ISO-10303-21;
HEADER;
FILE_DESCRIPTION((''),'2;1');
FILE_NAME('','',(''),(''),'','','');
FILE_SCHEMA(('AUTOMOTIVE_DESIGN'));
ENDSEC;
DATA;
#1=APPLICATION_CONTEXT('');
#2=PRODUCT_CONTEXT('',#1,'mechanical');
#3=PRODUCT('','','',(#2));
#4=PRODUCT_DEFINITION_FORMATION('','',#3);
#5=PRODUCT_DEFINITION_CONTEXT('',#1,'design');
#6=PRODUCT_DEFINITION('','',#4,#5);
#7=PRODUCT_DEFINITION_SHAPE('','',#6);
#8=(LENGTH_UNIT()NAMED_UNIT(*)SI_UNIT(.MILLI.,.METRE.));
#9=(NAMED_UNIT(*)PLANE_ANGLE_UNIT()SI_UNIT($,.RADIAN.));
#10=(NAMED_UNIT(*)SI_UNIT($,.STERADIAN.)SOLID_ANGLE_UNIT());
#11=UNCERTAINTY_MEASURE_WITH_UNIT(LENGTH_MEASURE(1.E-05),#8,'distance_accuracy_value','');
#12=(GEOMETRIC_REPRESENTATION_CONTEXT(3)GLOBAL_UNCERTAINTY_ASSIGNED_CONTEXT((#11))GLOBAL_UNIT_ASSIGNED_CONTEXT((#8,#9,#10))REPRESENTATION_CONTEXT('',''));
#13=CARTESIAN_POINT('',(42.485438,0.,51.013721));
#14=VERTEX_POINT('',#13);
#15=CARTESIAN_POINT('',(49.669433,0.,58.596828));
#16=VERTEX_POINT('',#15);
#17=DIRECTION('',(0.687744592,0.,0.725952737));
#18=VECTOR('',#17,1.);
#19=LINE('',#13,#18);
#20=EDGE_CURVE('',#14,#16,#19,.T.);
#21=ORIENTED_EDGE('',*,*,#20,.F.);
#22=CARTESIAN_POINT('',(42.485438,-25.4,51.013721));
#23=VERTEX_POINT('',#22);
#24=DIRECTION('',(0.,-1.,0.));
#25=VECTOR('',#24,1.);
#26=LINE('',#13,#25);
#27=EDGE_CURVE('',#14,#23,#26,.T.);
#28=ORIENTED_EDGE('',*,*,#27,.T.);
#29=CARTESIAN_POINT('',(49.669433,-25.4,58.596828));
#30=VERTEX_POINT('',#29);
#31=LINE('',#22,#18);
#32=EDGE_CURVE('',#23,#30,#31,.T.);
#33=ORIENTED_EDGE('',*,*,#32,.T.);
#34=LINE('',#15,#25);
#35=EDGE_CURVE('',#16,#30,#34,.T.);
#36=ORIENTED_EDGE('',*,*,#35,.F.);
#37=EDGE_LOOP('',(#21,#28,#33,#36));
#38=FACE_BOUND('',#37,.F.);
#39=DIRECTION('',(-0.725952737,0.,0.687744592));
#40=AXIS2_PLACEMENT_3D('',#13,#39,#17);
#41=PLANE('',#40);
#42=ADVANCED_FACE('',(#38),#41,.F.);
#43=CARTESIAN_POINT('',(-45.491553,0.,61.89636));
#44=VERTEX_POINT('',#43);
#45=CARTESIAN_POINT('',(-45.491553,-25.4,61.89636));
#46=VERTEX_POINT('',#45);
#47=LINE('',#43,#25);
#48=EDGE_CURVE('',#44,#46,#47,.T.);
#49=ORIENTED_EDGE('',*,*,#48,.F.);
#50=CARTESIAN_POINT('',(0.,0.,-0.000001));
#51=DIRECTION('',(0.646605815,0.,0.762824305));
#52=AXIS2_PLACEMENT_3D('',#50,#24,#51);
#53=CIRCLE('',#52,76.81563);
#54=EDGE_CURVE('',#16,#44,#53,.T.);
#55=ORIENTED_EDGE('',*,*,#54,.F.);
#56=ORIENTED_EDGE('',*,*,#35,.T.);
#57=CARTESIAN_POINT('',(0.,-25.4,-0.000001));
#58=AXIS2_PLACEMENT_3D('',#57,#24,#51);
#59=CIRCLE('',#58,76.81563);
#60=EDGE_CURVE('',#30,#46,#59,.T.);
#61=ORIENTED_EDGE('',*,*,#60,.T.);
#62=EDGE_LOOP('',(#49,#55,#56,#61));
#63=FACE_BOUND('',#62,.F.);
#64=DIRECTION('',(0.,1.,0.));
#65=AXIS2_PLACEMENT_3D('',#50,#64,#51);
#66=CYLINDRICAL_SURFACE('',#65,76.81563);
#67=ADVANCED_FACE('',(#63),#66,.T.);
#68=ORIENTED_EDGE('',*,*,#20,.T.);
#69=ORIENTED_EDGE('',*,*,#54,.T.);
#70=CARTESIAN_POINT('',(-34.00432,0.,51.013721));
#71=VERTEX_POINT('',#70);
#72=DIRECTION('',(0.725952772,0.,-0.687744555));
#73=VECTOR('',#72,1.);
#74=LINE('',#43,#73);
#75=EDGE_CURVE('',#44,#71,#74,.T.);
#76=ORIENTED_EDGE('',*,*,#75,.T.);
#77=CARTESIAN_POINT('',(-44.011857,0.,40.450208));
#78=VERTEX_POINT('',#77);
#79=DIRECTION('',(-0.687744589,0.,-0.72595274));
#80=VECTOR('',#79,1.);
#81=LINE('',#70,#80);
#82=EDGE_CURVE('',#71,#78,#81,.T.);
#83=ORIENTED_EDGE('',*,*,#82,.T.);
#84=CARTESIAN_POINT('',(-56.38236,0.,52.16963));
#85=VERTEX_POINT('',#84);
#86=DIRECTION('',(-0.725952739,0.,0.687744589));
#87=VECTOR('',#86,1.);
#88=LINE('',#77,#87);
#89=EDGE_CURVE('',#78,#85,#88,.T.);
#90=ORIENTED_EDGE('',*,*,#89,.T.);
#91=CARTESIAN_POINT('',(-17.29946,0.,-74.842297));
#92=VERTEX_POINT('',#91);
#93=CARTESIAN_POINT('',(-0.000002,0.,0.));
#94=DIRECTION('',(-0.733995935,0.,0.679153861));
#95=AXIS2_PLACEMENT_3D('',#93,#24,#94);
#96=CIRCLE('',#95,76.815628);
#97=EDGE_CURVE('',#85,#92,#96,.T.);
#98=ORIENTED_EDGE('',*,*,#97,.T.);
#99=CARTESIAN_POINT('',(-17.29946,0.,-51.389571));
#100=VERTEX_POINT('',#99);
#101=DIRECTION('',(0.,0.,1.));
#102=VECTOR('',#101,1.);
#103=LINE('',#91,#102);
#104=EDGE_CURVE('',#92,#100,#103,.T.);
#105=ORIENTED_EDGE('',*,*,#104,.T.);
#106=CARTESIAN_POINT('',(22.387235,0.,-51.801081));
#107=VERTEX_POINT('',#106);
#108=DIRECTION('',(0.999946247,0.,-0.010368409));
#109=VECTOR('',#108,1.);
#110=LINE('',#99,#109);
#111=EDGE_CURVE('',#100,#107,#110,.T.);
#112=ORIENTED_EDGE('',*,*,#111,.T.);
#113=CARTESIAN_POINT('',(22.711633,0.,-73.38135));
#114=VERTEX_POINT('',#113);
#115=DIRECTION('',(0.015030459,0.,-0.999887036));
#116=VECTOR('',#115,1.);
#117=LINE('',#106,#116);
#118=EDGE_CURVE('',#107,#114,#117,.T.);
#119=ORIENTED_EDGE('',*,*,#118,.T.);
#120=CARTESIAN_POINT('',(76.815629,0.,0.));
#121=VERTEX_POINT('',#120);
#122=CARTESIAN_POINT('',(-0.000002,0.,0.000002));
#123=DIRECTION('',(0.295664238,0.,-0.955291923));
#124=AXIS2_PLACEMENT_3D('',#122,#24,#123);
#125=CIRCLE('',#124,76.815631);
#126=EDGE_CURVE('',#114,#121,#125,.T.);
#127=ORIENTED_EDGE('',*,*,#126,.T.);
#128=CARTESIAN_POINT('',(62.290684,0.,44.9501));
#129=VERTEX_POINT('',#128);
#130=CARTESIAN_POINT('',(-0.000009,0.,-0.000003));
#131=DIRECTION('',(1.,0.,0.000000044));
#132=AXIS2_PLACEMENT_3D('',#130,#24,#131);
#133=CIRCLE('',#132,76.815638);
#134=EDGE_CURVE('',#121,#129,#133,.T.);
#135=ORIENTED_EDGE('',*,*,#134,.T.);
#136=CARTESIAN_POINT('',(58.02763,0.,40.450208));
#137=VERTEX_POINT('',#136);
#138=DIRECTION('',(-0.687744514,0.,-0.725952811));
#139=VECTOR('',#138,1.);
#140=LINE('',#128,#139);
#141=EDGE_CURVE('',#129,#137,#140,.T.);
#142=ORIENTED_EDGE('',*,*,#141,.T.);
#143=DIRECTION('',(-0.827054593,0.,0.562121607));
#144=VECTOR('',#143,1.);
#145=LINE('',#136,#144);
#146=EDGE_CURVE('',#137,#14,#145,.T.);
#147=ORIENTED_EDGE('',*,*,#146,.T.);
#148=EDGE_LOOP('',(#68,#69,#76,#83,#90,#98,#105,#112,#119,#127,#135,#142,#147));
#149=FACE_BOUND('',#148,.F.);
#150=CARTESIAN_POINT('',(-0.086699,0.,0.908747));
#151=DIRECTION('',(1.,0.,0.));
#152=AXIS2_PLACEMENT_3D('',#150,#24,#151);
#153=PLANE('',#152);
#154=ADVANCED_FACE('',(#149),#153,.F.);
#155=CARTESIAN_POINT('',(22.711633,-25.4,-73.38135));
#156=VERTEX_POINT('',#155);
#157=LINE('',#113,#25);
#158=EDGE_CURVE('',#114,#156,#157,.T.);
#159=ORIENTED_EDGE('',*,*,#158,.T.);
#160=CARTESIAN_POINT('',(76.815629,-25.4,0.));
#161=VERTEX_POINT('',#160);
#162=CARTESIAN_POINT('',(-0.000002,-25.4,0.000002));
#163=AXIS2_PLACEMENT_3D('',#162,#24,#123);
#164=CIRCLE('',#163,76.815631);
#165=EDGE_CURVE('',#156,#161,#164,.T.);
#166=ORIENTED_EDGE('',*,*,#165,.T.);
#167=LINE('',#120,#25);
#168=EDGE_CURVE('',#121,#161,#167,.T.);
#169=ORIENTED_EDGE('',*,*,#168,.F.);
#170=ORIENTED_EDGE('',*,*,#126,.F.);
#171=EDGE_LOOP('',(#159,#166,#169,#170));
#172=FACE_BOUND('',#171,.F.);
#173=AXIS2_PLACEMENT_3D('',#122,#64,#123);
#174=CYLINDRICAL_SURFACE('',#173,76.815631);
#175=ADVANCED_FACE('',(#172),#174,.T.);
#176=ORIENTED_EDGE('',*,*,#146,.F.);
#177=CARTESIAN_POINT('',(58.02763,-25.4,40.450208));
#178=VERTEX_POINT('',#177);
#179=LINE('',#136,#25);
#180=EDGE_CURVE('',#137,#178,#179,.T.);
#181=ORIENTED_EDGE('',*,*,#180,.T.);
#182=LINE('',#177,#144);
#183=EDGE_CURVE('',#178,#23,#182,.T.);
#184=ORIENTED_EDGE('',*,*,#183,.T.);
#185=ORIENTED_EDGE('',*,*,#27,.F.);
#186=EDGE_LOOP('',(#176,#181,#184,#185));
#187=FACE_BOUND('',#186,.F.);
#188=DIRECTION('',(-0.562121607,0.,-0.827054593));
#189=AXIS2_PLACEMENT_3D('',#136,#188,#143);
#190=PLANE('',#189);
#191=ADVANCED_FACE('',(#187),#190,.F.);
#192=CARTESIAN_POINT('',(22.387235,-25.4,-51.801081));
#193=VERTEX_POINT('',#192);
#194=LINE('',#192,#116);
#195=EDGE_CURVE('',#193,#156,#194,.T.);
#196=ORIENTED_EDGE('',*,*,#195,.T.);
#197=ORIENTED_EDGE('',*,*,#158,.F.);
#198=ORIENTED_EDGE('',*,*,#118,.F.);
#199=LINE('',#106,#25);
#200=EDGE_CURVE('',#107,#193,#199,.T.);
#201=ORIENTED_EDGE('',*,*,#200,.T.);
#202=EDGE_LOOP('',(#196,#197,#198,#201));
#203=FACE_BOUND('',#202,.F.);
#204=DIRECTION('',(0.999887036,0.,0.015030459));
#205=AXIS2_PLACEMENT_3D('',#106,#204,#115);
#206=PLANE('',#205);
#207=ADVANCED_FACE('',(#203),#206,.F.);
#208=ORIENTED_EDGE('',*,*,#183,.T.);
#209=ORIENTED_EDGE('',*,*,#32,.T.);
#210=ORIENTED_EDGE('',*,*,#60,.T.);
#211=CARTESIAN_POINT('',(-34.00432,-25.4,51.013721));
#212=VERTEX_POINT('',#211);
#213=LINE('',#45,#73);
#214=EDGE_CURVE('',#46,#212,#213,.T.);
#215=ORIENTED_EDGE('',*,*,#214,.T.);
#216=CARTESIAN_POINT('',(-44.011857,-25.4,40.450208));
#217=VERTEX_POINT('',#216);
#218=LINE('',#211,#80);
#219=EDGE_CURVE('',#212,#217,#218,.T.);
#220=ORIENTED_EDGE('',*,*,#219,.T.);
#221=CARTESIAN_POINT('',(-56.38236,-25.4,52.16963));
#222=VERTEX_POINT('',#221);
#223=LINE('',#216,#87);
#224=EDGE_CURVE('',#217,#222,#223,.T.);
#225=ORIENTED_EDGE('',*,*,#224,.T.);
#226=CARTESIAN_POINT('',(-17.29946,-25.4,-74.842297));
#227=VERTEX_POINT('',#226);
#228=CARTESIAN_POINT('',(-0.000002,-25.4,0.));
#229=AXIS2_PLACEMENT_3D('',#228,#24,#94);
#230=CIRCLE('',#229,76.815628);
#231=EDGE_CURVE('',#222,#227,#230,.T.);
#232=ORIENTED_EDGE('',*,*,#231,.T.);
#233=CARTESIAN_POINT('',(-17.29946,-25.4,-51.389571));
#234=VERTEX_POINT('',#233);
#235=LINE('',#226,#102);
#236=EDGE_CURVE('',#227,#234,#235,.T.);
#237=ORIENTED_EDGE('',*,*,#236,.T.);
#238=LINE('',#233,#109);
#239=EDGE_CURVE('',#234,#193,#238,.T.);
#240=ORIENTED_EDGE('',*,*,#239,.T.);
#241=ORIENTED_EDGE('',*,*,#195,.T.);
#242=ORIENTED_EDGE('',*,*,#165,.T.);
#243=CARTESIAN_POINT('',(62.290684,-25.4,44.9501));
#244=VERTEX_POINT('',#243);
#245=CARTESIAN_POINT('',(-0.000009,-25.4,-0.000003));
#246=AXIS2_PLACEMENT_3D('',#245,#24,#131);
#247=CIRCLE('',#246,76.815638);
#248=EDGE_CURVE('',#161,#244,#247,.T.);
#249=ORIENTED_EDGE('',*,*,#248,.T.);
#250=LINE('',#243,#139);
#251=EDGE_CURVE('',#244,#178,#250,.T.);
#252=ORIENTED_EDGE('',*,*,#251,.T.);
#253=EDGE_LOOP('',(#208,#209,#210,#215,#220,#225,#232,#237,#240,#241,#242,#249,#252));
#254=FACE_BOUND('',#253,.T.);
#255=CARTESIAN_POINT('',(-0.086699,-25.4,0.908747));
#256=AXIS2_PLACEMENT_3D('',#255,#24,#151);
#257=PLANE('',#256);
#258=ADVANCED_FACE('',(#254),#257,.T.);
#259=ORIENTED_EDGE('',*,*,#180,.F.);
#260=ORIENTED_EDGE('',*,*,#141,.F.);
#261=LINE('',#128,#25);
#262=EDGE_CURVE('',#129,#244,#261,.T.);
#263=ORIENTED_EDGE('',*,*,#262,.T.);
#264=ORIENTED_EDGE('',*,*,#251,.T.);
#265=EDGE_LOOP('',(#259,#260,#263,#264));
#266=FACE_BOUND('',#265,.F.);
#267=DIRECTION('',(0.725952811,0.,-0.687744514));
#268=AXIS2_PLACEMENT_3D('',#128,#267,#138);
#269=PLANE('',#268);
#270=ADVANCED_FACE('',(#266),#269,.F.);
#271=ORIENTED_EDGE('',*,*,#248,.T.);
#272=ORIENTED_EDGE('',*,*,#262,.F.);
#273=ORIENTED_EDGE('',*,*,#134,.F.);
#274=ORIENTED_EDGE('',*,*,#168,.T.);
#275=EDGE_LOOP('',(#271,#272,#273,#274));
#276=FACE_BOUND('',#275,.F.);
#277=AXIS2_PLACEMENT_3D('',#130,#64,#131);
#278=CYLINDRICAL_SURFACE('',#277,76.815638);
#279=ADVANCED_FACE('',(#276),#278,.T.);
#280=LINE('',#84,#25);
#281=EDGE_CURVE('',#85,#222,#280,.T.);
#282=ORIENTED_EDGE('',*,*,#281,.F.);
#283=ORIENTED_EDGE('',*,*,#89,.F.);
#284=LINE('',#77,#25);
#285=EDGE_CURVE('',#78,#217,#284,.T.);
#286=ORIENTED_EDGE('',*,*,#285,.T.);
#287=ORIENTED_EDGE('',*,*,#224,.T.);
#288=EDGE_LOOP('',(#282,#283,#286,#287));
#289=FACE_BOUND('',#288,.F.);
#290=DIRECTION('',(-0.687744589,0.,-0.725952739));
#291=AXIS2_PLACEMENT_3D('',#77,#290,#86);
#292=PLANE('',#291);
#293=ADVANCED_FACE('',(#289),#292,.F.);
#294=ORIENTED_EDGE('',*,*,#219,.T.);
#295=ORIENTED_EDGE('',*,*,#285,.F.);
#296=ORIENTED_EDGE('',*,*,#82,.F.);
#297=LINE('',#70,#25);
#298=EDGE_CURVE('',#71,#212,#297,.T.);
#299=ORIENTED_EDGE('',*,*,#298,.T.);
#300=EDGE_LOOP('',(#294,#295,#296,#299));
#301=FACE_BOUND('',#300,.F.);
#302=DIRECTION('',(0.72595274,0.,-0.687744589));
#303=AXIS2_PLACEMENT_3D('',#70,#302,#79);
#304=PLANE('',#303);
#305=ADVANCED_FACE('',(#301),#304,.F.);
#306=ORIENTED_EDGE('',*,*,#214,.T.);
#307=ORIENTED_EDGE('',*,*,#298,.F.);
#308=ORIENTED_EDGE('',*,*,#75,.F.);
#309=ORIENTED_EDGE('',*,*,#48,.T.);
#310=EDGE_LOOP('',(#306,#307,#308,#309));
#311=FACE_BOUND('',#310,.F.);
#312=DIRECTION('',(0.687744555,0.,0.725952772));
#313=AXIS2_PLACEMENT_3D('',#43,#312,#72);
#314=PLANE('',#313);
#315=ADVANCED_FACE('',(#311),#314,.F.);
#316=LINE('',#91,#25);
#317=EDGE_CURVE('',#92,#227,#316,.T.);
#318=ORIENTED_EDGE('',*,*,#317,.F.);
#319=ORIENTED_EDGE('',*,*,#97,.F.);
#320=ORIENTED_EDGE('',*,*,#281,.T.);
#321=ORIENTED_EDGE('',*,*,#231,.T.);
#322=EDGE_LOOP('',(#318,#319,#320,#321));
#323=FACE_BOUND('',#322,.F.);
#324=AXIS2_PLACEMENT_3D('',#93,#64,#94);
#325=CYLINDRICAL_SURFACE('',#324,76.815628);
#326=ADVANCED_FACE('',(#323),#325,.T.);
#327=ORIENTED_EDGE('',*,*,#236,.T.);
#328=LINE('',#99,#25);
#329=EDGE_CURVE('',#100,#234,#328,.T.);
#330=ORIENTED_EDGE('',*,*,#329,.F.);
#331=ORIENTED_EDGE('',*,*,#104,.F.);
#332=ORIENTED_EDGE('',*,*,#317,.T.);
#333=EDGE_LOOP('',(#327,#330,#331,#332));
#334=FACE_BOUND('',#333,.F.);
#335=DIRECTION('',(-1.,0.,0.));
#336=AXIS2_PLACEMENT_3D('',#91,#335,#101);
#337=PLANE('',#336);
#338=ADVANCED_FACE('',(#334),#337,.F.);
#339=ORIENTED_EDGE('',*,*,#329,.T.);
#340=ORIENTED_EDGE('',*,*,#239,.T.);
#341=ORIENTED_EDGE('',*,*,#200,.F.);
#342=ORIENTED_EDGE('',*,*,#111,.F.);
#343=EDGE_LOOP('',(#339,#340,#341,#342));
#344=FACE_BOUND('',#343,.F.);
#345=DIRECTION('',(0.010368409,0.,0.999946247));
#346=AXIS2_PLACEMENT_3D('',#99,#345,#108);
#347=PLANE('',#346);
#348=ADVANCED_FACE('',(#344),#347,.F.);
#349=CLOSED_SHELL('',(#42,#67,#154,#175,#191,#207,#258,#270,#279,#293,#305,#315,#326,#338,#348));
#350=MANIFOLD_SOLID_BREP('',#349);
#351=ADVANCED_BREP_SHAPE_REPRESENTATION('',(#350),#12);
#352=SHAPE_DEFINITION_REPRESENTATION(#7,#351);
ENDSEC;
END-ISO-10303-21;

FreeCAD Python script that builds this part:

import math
import FreeCAD as App
import Part
import Sketcher
Q = App.Units.Quantity

doc = App.newDocument("Part")
body = doc.addObject("PartDesign::Body", "Body")

# Sketch on XZ plane
sketch1 = doc.addObject("Sketcher::SketchObject", "Sketch")
body.addObject(sketch1)
sketch1.AttachmentSupport = (doc.XZ_Plane, [""])
sketch1.MapMode = "FlatFace"
sketch1.addGeometry([
    Part.ArcOfCircle(Part.Circle(App.Vector(0, 0, 0), App.Vector(0, 0, 1), 77), math.radians(-73), math.radians(0)),  # 0
    Part.ArcOfCircle(Part.Circle(App.Vector(0, 0, 0), App.Vector(0, 0, 1), 77), math.radians(0), math.radians(36)),  # 1
    Part.LineSegment(App.Vector(62, 45, 0), App.Vector(58, 40, 0)),  # 2
    Part.LineSegment(App.Vector(58, 40, 0), App.Vector(42, 51, 0)),  # 3
    Part.LineSegment(App.Vector(42, 51, 0), App.Vector(50, 59, 0)),  # 4
    Part.ArcOfCircle(Part.Circle(App.Vector(0, 0, 0), App.Vector(0, 0, 1), 77), math.radians(50), math.radians(126)),  # 5
    Part.LineSegment(App.Vector(-45, 62, 0), App.Vector(-34, 51, 0)),  # 6
    Part.LineSegment(App.Vector(-34, 51, 0), App.Vector(-44, 40, 0)),  # 7
    Part.LineSegment(App.Vector(-44, 40, 0), App.Vector(-56, 52, 0)),  # 8
    Part.ArcOfCircle(Part.Circle(App.Vector(0, 0, 0), App.Vector(0, 0, 1), 77), math.radians(137), math.radians(257)),  # 9
    Part.LineSegment(App.Vector(-17, -75, 0), App.Vector(-17, -51, 0)),  # 10
    Part.LineSegment(App.Vector(-17, -51, 0), App.Vector(22, -52, 0)),  # 11
    Part.LineSegment(App.Vector(22, -52, 0), App.Vector(23, -73, 0)),  # 12
], False)
sketch1.addConstraint([
    Sketcher.Constraint("Tangent", 0, 2, 1, 1),
    Sketcher.Constraint("Coincident", 1, 2, 2, 1),
    Sketcher.Constraint("Coincident", 2, 2, 3, 1),
    Sketcher.Constraint("Coincident", 3, 2, 4, 1),
    Sketcher.Constraint("Coincident", 4, 2, 5, 1),
    Sketcher.Constraint("Coincident", 5, 2, 6, 1),
    Sketcher.Constraint("Coincident", 6, 2, 7, 1),
    Sketcher.Constraint("Coincident", 7, 2, 8, 1),
    Sketcher.Constraint("Coincident", 8, 2, 9, 1),
    Sketcher.Constraint("Coincident", 9, 2, 10, 1),
    Sketcher.Constraint("Coincident", 10, 2, 11, 1),
    Sketcher.Constraint("Coincident", 11, 2, 12, 1),
    Sketcher.Constraint("Coincident", 12, 2, 0, 1),
    Sketcher.Constraint("Vertical", 10),
    Sketcher.Constraint("Coincident", 0, 3, -1, 1),
    Sketcher.Constraint("Coincident", 5, 3, -1, 1),
    Sketcher.Constraint("Coincident", 9, 3, -1, 1),
    Sketcher.Constraint("Equal", 0, 5),
    Sketcher.Constraint("Equal", 5, 9),
    Sketcher.Constraint("PointOnObject", 0, 2, -1),
    Sketcher.Constraint("Parallel", 2, 4),
    Sketcher.Constraint("Perpendicular", 4, 6),
    Sketcher.Constraint("Perpendicular", 6, 7),
    Sketcher.Constraint("Perpendicular", 7, 8),
    Sketcher.Constraint("Horizontal", 3, 2, 6, 2),
    Sketcher.Constraint("Horizontal", 2, 2, 7, 2),
    Sketcher.Constraint("Radius", 0, Q("76.815631 mm")),
    Sketcher.Constraint("Radius", 1, Q("76.815638 mm")),
    Sketcher.Constraint("Distance", 2, Q("6.198601 mm")),
    Sketcher.Constraint("DistanceY", -1, 1, 1, 2, Q("44.9501 mm")),
    Sketcher.Constraint("DistanceX", 2, 2, 0, 2, Q("18.787999 mm")),
    Sketcher.Constraint("DistanceY", 9, 2, 0, 3, Q("74.842299 mm")),
    Sketcher.Constraint("Distance", 3, Q("18.79222 mm")),
    Sketcher.Constraint("Distance", 4, Q("10.445731 mm")),
    Sketcher.Constraint("Distance", 8, Q("17.04037 mm")),
    Sketcher.Constraint("Distance", 11, Q("39.688828 mm")),
    Sketcher.Constraint("DistanceY", 10, 1, 10, 2, Q("23.452726 mm")),
    Sketcher.Constraint("DistanceY", 11, 2, -1, 1, Q("51.801081 mm")),
    Sketcher.Constraint("DistanceY", 12, 2, -1, 1, Q("73.38135 mm")),
])
pad1 = doc.addObject("PartDesign::Pad", "Pad")
body.addObject(pad1)
pad1.Profile = sketch1
pad1.Length = Q("1 in")

doc.recompute()
